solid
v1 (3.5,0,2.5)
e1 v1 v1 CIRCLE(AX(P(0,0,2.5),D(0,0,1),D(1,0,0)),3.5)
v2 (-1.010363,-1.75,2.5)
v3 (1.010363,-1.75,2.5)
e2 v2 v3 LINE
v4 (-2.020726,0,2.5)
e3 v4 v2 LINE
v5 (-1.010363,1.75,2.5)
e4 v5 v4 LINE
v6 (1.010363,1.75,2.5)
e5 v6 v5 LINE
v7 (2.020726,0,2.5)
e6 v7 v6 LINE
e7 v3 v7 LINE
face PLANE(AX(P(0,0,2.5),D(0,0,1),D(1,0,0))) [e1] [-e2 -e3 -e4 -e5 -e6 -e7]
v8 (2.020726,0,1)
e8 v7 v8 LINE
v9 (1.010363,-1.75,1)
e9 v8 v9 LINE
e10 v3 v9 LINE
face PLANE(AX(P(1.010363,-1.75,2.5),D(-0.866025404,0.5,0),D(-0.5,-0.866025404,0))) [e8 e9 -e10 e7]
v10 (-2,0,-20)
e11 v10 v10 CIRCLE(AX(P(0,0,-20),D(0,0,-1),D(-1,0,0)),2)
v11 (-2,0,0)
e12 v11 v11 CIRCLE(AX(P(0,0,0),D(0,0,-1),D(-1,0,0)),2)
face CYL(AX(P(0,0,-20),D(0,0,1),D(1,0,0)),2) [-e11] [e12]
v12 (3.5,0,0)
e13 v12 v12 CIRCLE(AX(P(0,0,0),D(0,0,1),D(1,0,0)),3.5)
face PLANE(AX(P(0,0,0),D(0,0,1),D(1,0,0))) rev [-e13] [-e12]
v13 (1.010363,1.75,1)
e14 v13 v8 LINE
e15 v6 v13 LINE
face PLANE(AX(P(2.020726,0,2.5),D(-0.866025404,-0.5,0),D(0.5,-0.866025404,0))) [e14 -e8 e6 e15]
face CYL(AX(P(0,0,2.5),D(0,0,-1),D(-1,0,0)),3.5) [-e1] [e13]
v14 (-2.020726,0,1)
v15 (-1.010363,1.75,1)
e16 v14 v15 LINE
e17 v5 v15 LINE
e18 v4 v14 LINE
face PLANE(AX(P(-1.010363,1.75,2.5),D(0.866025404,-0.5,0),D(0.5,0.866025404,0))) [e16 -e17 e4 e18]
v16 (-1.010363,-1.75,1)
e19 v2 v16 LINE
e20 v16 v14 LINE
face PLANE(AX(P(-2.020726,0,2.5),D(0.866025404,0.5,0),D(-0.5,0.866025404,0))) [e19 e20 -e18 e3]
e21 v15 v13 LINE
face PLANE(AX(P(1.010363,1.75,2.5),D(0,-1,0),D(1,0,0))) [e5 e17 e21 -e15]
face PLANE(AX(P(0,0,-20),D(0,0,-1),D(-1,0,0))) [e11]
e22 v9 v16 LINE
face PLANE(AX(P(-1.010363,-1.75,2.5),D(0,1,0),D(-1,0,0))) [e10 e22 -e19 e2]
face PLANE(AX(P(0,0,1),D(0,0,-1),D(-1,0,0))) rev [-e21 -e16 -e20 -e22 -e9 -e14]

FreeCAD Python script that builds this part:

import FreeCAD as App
import Part
import Sketcher

V = App.Vector
Q = App.Units.Quantity


def add_polygon(sketch, points):
    """Adds a closed chain of lines whose ends are joined by coincident constraints."""
    first, n = sketch.GeometryCount, len(points)
    for a, b in zip(points, points[1:] + points[:1]):
        sketch.addGeometry(Part.LineSegment(App.Vector(*a, 0), App.Vector(*b, 0)), False)
    for i in range(n):
        sketch.addConstraint(Sketcher.Constraint("Coincident", first + i, 2, first + (i + 1) % n, 1))

doc = App.newDocument("Part")
params = doc.addObject("Spreadsheet::Sheet", "Params")
for row, (alias, value) in enumerate([
    ("sketch1_diameter", "7 mm"),
    ("pad1_length", "2.5 mm"),
    ("sketch2_diameter", "4 mm"),
    ("pad2_length", "20 mm"),
    ("pad3_length", "1 mm"),
], start=1):
    params.set(f"A{row}", alias)
    params.set(f"B{row}", "=" + value)
    params.setAlias(f"B{row}", alias)

body = doc.addObject("PartDesign::Body", "Body")

sketch1 = body.newObject("Sketcher::SketchObject", "Sketch")
sketch1.AttachmentSupport = (doc.getObject("XY_Plane"), [""])
sketch1.MapMode = "FlatFace"
sketch1.addGeometry(Part.Circle(V(0, 0, 0), V(0, 0, 1), 3.5), False)
add_polygon(sketch1, [(1, 1.8), (2, 0), (1, -1.8), (-1, -1.8), (-2, 0), (-1, 1.8)])
sketch1.addConstraint([
    Sketcher.Constraint("Horizontal", 3),
    Sketcher.Constraint("Horizontal", 6),
    Sketcher.Constraint("Coincident", 0, 3, -1, 1),
    Sketcher.Constraint("Symmetric", 1, 2, 4, 2, -1, 1),
    Sketcher.Constraint("Symmetric", 2, 2, 5, 2, -1, 1),
    Sketcher.Constraint("PointOnObject", 1, 2, -1),
    Sketcher.Constraint("Parallel", 1, 4),
    Sketcher.Constraint("Vertical", 3, 2, 5, 2),
    Sketcher.Constraint("Diameter", 0, Q("7 mm")),
    Sketcher.Constraint("Angle", 1, Q("-60 deg")),
    Sketcher.Constraint("DistanceY", 3, 2, 5, 2, Q("3.5 mm")),
    Sketcher.Constraint("DistanceX", 3, 2, 3, 1, Q("2.020726 mm")),
])
sketch1.setExpression("Constraints[14]", "Params.sketch1_diameter")
pad1 = body.newObject("PartDesign::Pad", "Pad")
pad1.Profile = sketch1
pad1.setExpression("Length", "Params.pad1_length")

sketch2 = body.newObject("Sketcher::SketchObject", "Sketch001")
sketch2.AttachmentSupport = (doc.getObject("XY_Plane"), [""])
sketch2.MapMode = "FlatFace"
sketch2.addGeometry(Part.Circle(V(0, 0, 0), V(0, 0, 1), 2), False)
sketch2.addConstraint([
    Sketcher.Constraint("Coincident", 0, 3, -1, 1),
    Sketcher.Constraint("Diameter", 0, Q("4 mm")),
])
sketch2.setExpression("Constraints[1]", "Params.sketch2_diameter")
pad2 = body.newObject("PartDesign::Pad", "Pad001")
pad2.Profile = sketch2
pad2.setExpression("Length", "Params.pad2_length")
pad2.Reversed = True

sketch3 = body.newObject("Sketcher::SketchObject", "Sketch002")
sketch3.AttachmentSupport = (doc.getObject("XY_Plane"), [""])
sketch3.MapMode = "FlatFace"
add_polygon(sketch3, [(-1, -1.8), (1, -1.8), (2, 0), (1, 1.8), (-1, 1.8), (-2, 0)])
sketch3.addConstraint([
    Sketcher.Constraint("Horizontal", 0),
    Sketcher.Constraint("Horizontal", 3),
    Sketcher.Constraint("Symmetric", 0, 2, 3, 2, -1, 1),
    Sketcher.Constraint("Symmetric", 1, 2, 4, 2, -1, 1),
    Sketcher.Constraint("PointOnObject", 1, 2, -1),
    Sketcher.Constraint("Parallel", 2, 5),
    Sketcher.Constraint("Vertical", 0, 2, 2, 2),
    Sketcher.Constraint("Angle", 1, Q("60 deg")),
    Sketcher.Constraint("DistanceY", 0, 2, 2, 2, Q("3.5 mm")),
    Sketcher.Constraint("DistanceX", 0, 1, 0, 2, Q("2.020726 mm")),
])
pad3 = body.newObject("PartDesign::Pad", "Pad002")
pad3.Profile = sketch3
pad3.setExpression("Length", "Params.pad3_length")

doc.recompute()
